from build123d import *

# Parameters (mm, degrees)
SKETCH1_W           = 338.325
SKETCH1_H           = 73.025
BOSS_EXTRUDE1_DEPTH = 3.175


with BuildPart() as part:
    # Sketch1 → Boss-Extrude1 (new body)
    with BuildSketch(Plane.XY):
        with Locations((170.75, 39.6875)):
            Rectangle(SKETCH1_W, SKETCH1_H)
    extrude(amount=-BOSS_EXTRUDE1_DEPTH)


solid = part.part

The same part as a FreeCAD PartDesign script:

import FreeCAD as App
import Part
import Sketcher

V = App.Vector
Q = App.Units.Quantity


def add_polygon(sketch, points):
    """Adds a closed chain of lines whose ends are joined by coincident constraints."""
    first, n = sketch.GeometryCount, len(points)
    for a, b in zip(points, points[1:] + points[:1]):
        sketch.addGeometry(Part.LineSegment(App.Vector(*a, 0), App.Vector(*b, 0)), False)
    for i in range(n):
        sketch.addConstraint(Sketcher.Constraint("Coincident", first + i, 2, first + (i + 1) % n, 1))

doc = App.newDocument("Part")
body = doc.addObject("PartDesign::Body", "Body")

# Sketch on XY plane
sketch1 = body.newObject("Sketcher::SketchObject", "Sketch")
sketch1.AttachmentSupport = (doc.getObject("XY_Plane"), [""])
sketch1.MapMode = "FlatFace"
add_polygon(sketch1, [(1.5875, 76.2), (1.5875, 3.175), (339.9125, 3.175), (339.9125, 76.2)])  # lines 0-3
sketch1.addConstraint([
    Sketcher.Constraint("Vertical", 0),
    Sketcher.Constraint("Horizontal", 1),
    Sketcher.Constraint("Vertical", 2),
    Sketcher.Constraint("Horizontal", 3),
    Sketcher.Constraint("DistanceY", -1, 1, 2, 2, Q("3 in")),
    Sketcher.Constraint("DistanceY", 0, 2, 0, 1, Q("2.875 in")),
    Sketcher.Constraint("DistanceX", -1, 1, 0, 2, Q("0.0625 in")),
    Sketcher.Constraint("DistanceX", 1, 1, 1, 2, Q("338.325 mm")),
])
pad1 = body.newObject("PartDesign::Pad", "Pad")
pad1.Profile = sketch1
pad1.Length = Q("0.125 in")
pad1.Reversed = True

doc.recompute()
